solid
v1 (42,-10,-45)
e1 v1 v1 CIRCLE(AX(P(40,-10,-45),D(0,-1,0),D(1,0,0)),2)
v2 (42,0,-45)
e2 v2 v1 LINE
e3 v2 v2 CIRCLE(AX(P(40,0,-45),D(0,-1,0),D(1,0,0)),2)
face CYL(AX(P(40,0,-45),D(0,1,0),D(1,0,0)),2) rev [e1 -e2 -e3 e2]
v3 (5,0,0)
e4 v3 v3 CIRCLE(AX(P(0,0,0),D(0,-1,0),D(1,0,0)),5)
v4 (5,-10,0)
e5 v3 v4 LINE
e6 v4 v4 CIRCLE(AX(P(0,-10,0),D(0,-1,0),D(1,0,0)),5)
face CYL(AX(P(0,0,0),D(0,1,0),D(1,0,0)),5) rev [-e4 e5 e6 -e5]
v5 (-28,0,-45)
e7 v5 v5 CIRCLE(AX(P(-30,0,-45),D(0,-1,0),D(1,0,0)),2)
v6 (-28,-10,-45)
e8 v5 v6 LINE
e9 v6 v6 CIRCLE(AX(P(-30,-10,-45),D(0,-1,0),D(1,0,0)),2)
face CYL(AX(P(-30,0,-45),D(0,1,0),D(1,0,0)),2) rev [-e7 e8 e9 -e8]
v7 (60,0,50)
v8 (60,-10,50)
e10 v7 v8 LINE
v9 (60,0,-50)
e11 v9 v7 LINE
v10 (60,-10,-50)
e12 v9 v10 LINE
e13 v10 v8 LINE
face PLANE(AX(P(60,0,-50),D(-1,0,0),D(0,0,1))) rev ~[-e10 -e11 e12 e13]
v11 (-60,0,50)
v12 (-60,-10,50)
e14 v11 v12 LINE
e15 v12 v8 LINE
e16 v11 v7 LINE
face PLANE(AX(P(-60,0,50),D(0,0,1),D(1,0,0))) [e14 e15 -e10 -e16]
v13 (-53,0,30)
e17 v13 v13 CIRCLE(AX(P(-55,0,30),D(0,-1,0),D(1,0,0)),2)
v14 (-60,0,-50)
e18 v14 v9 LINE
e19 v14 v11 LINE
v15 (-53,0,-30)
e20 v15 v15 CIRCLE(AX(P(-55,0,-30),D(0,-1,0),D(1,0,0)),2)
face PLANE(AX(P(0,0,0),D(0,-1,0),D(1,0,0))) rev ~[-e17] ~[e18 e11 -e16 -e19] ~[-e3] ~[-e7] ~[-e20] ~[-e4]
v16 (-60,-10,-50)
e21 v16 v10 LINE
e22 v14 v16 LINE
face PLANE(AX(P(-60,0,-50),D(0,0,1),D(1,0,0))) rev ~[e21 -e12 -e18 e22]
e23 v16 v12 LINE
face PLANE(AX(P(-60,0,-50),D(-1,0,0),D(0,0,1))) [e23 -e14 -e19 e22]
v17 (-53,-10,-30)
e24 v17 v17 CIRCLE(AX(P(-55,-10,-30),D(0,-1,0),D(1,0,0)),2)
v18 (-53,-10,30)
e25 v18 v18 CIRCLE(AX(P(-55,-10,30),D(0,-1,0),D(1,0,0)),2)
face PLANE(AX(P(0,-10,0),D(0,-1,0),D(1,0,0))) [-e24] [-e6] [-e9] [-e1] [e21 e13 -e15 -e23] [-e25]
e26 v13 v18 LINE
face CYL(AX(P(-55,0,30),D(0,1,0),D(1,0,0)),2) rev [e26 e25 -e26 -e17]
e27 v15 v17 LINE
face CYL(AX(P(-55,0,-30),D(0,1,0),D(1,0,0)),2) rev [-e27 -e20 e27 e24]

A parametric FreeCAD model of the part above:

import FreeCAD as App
import Part
import Sketcher


def add_polygon(sketch, points):
    """Adds a closed chain of lines whose ends are joined by coincident constraints."""
    first, n = sketch.GeometryCount, len(points)
    for a, b in zip(points, points[1:] + points[:1]):
        sketch.addGeometry(Part.LineSegment(App.Vector(*a, 0), App.Vector(*b, 0)), False)
    for i in range(n):
        sketch.addConstraint(Sketcher.Constraint("Coincident", first + i, 2, first + (i + 1) % n, 1))

doc = App.newDocument("Part")
body = doc.addObject("PartDesign::Body", "Body")

# Sketch on XZ plane
sketch1 = doc.addObject("Sketcher::SketchObject", "Sketch")
body.addObject(sketch1)
sketch1.AttachmentSupport = (doc.XZ_Plane, [""])
sketch1.MapMode = "FlatFace"
add_polygon(sketch1, [(-60, 50), (-60, -50), (60, -50), (60, 50)])  # lines 0-3
sketch1.addGeometry(Part.Circle(App.Vector(-55, -30, 0), App.Vector(0, 0, 1), 2), False)  # 4
sketch1.addGeometry(Part.Circle(App.Vector(-30, -45, 0), App.Vector(0, 0, 1), 2), False)  # 5
sketch1.addGeometry(Part.Circle(App.Vector(40, -45, 0), App.Vector(0, 0, 1), 2), False)  # 6
sketch1.addGeometry(Part.Circle(App.Vector(-55, 30, 0), App.Vector(0, 0, 1), 2), False)  # 7
sketch1.addGeometry(Part.Circle(App.Vector(0, 0, 0), App.Vector(0, 0, 1), 5), False)  # 8
sketch1.addConstraint(Sketcher.Constraint("Vertical", 0))
sketch1.addConstraint(Sketcher.Constraint("Horizontal", 1))
sketch1.addConstraint(Sketcher.Constraint("Vertical", 2))
sketch1.addConstraint(Sketcher.Constraint("Horizontal", 3))
sketch1.addConstraint(Sketcher.Constraint("Coincident", 8, 3, -1, 1))
sketch1.addConstraint(Sketcher.Constraint("Equal", 4, 5))
sketch1.addConstraint(Sketcher.Constraint("Equal", 5, 6))
sketch1.addConstraint(Sketcher.Constraint("Equal", 6, 7))
sketch1.addConstraint(Sketcher.Constraint("Symmetric", 0, 2, 2, 2, -1, 1))
sketch1.addConstraint(Sketcher.Constraint("Symmetric", 4, 3, 7, 3, -1))
sketch1.addConstraint(Sketcher.Constraint("Horizontal", 5, 3, 6, 3))
sketch1.addConstraint(Sketcher.Constraint("Diameter", 4, 4.0))
sketch1.addConstraint(Sketcher.Constraint("Diameter", 8, 10.0))
sketch1.addConstraint(Sketcher.Constraint("DistanceX", 1, 1, 1, 2, 120.0))
sketch1.addConstraint(Sketcher.Constraint("DistanceY", 0, 2, 0, 1, 100.0))
sketch1.addConstraint(Sketcher.Constraint("DistanceX", 4, 3, -1, 1, 55.0))
sketch1.addConstraint(Sketcher.Constraint("DistanceY", 4, 3, -1, 1, 30.0))
sketch1.addConstraint(Sketcher.Constraint("DistanceX", 5, 3, -1, 1, 30.0))
sketch1.addConstraint(Sketcher.Constraint("DistanceY", 5, 3, -1, 1, 45.0))
sketch1.addConstraint(Sketcher.Constraint("DistanceX", -1, 1, 6, 3, 40.0))
pad1 = doc.addObject("PartDesign::Pad", "Pad")
body.addObject(pad1)
pad1.Profile = sketch1
pad1.Length = 10

doc.recompute()
